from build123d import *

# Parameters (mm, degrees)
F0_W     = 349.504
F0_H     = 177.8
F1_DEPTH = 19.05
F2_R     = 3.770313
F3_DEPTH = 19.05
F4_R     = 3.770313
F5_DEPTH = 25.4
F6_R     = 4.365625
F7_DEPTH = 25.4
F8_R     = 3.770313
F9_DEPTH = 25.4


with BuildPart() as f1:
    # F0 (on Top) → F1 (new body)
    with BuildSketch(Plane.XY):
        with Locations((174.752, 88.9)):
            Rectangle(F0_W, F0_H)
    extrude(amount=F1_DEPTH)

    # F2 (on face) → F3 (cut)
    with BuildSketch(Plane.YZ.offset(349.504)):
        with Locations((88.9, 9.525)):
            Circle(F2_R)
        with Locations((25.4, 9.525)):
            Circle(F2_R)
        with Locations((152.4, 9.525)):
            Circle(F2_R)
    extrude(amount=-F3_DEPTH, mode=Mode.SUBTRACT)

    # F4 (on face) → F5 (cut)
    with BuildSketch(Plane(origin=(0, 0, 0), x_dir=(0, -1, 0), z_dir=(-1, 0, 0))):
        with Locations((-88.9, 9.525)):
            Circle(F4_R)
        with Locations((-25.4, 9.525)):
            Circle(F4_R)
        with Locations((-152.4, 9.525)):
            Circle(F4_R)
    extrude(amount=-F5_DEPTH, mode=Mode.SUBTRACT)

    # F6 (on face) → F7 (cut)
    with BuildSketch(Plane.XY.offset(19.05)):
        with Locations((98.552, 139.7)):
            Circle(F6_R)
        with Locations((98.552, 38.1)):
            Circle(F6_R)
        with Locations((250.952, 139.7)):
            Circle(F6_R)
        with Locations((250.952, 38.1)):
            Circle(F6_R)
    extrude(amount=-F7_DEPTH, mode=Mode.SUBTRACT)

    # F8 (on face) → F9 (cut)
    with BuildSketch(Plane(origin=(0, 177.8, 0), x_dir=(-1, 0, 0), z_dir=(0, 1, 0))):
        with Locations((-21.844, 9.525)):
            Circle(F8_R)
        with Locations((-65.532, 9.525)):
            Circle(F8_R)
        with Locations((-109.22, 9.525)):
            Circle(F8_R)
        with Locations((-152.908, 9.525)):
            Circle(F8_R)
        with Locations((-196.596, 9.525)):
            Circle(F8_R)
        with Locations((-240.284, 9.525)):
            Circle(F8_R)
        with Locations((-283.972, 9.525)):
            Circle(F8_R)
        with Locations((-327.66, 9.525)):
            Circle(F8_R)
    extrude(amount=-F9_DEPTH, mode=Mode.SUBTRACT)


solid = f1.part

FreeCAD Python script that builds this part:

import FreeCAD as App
import Part
import Sketcher

V = App.Vector
Q = App.Units.Quantity


def add_polygon(sketch, points):
    """Adds a closed chain of lines whose ends are joined by coincident constraints."""
    first, n = sketch.GeometryCount, len(points)
    for a, b in zip(points, points[1:] + points[:1]):
        sketch.addGeometry(Part.LineSegment(App.Vector(*a, 0), App.Vector(*b, 0)), False)
    for i in range(n):
        sketch.addConstraint(Sketcher.Constraint("Coincident", first + i, 2, first + (i + 1) % n, 1))

doc = App.newDocument("Part")
body = doc.addObject("PartDesign::Body", "Body")

# Sketch on XY plane
sketch1 = body.newObject("Sketcher::SketchObject", "Sketch")
sketch1.AttachmentSupport = (doc.getObject("XY_Plane"), [""])
sketch1.MapMode = "FlatFace"
add_polygon(sketch1, [(0, 178), (0, 0), (350, 0), (350, 178)])  # lines 0-3
sketch1.addConstraint(Sketcher.Constraint("Vertical", 0))
sketch1.addConstraint(Sketcher.Constraint("Horizontal", 1))
sketch1.addConstraint(Sketcher.Constraint("Vertical", 2))
sketch1.addConstraint(Sketcher.Constraint("Horizontal", 3))
sketch1.addConstraint(Sketcher.Constraint("Coincident", 0, 2, -1, 1))
sketch1.addConstraint(Sketcher.Constraint("DistanceY", 0, 2, 0, 1, Q("7 in")))
sketch1.addConstraint(Sketcher.Constraint("DistanceX", 1, 1, 1, 2, Q("13.76 in")))
pad1 = body.newObject("PartDesign::Pad", "Pad")
pad1.Profile = sketch1
pad1.Length = Q("0.75 in")

# Sketch on YZ plane
sketch2 = body.newObject("Sketcher::SketchObject", "Sketch001")
sketch2.AttachmentSupport = (doc.getObject("YZ_Plane"), [""])
sketch2.MapMode = "FlatFace"
sketch2.AttachmentOffset = App.Placement(V(0, 0, 13.76 * 25.4), App.Rotation())
sketch2.addGeometry(Part.Circle(V(88.9, 9.5, 0), V(0, 0, 1), 3.8), False)
sketch2.addGeometry(Part.Circle(V(25.4, 9.5, 0), V(0, 0, 1), 3.8), False)
sketch2.addGeometry(Part.Circle(V(152.4, 9.5, 0), V(0, 0, 1), 3.8), False)
sketch2.addConstraint(Sketcher.Constraint("Equal", 0, 1))
sketch2.addConstraint(Sketcher.Constraint("Equal", 1, 2))
sketch2.addConstraint(Sketcher.Constraint("Horizontal", 0, 3, 1, 3))
sketch2.addConstraint(Sketcher.Constraint("Horizontal", 1, 3, 2, 3))
sketch2.addConstraint(Sketcher.Constraint("Diameter", 0, Q("0.296875 in")))
sketch2.addConstraint(Sketcher.Constraint("DistanceX", -1, 1, 1, 3, Q("1 in")))
sketch2.addConstraint(Sketcher.Constraint("DistanceX", -1, 1, 2, 3, Q("6 in")))
sketch2.addConstraint(Sketcher.Constraint("DistanceX", -1, 1, 0, 3, Q("3.5 in")))
sketch2.addConstraint(Sketcher.Constraint("DistanceY", -1, 1, 0, 3, Q("0.375 in")))
pocket1 = body.newObject("PartDesign::Pocket", "Pocket")
pocket1.Profile = sketch2
pocket1.Length = Q("0.75 in")

# Sketch on YZ plane
sketch3 = body.newObject("Sketcher::SketchObject", "Sketch002")
sketch3.AttachmentSupport = (doc.getObject("YZ_Plane"), [""])
sketch3.MapMode = "FlatFace"
sketch3.addGeometry(Part.Circle(V(88.9, 9.5, 0), V(0, 0, 1), 3.8), False)
sketch3.addGeometry(Part.Circle(V(25.4, 9.5, 0), V(0, 0, 1), 3.8), False)
sketch3.addGeometry(Part.Circle(V(152.4, 9.5, 0), V(0, 0, 1), 3.8), False)
sketch3.addConstraint(Sketcher.Constraint("Equal", 0, 1))
sketch3.addConstraint(Sketcher.Constraint("Equal", 1, 2))
sketch3.addConstraint(Sketcher.Constraint("Horizontal", 0, 3, 1, 3))
sketch3.addConstraint(Sketcher.Constraint("Horizontal", 1, 3, 2, 3))
sketch3.addConstraint(Sketcher.Constraint("Diameter", 0, Q("0.296875 in")))
sketch3.addConstraint(Sketcher.Constraint("DistanceX", -1, 1, 1, 3, Q("1 in")))
sketch3.addConstraint(Sketcher.Constraint("DistanceX", -1, 1, 2, 3, Q("6 in")))
sketch3.addConstraint(Sketcher.Constraint("DistanceX", -1, 1, 0, 3, Q("3.5 in")))
sketch3.addConstraint(Sketcher.Constraint("DistanceY", -1, 1, 0, 3, Q("0.375 in")))
pocket2 = body.newObject("PartDesign::Pocket", "Pocket001")
pocket2.Profile = sketch3
pocket2.Length = Q("1 in")
pocket2.Reversed = True

# Sketch on XY plane
sketch4 = body.newObject("Sketcher::SketchObject", "Sketch003")
sketch4.AttachmentSupport = (doc.getObject("XY_Plane"), [""])
sketch4.MapMode = "FlatFace"
sketch4.AttachmentOffset = App.Placement(V(0, 0, 0.75 * 25.4), App.Rotation())
sketch4.addGeometry(Part.Circle(V(98.6, 139.7, 0), V(0, 0, 1), 4.4), False)
sketch4.addGeometry(Part.Circle(V(98.6, 38.1, 0), V(0, 0, 1), 4.4), False)
sketch4.addGeometry(Part.Circle(V(251, 139.7, 0), V(0, 0, 1), 4.4), False)
sketch4.addGeometry(Part.Circle(V(251, 38.1, 0), V(0, 0, 1), 4.4), False)
sketch4.addConstraint(Sketcher.Constraint("Equal", 0, 1))
sketch4.addConstraint(Sketcher.Constraint("Equal", 1, 2))
sketch4.addConstraint(Sketcher.Constraint("Equal", 2, 3))
sketch4.addConstraint(Sketcher.Constraint("Horizontal", 0, 3, 2, 3))
sketch4.addConstraint(Sketcher.Constraint("Horizontal", 1, 3, 3, 3))
sketch4.addConstraint(Sketcher.Constraint("Vertical", 0, 3, 1, 3))
sketch4.addConstraint(Sketcher.Constraint("Vertical", 2, 3, 3, 3))
sketch4.addConstraint(Sketcher.Constraint("Diameter", 0, Q("0.34375 in")))
sketch4.addConstraint(Sketcher.Constraint("DistanceY", 1, 3, 0, 3, Q("4 in")))
sketch4.addConstraint(Sketcher.Constraint("DistanceX", 0, 3, 2, 3, Q("6 in")))
sketch4.addConstraint(Sketcher.Constraint("DistanceY", -1, 1, 0, 3, Q("5.5 in")))
sketch4.addConstraint(Sketcher.Constraint("DistanceX", -1, 1, 0, 3, Q("3.88 in")))
pocket3 = body.newObject("PartDesign::Pocket", "Pocket002")
pocket3.Profile = sketch4
pocket3.Length = Q("1 in")

# Sketch on XZ plane
sketch5 = body.newObject("Sketcher::SketchObject", "Sketch004")
sketch5.AttachmentSupport = (doc.getObject("XZ_Plane"), [""])
sketch5.MapMode = "FlatFace"
sketch5.AttachmentOffset = App.Placement(V(0, 0, -7 * 25.4), App.Rotation())
sketch5.addGeometry(Part.Circle(V(21.8, 9.5, 0), V(0, 0, 1), 3.8), False)
sketch5.addGeometry(Part.Circle(V(65.5, 9.5, 0), V(0, 0, 1), 3.8), False)
sketch5.addGeometry(Part.Circle(V(109.2, 9.5, 0), V(0, 0, 1), 3.8), False)
sketch5.addGeometry(Part.Circle(V(152.9, 9.5, 0), V(0, 0, 1), 3.8), False)
sketch5.addGeometry(Part.Circle(V(196.6, 9.5, 0), V(0, 0, 1), 3.8), False)
sketch5.addGeometry(Part.Circle(V(240.3, 9.5, 0), V(0, 0, 1), 3.8), False)
sketch5.addGeometry(Part.Circle(V(284, 9.5, 0), V(0, 0, 1), 3.8), False)
sketch5.addGeometry(Part.Circle(V(327.7, 9.5, 0), V(0, 0, 1), 3.8), False)
sketch5.addConstraint(Sketcher.Constraint("Equal", 0, 1))
sketch5.addConstraint(Sketcher.Constraint("Equal", 1, 2))
sketch5.addConstraint(Sketcher.Constraint("Equal", 2, 3))
sketch5.addConstraint(Sketcher.Constraint("Equal", 3, 4))
sketch5.addConstraint(Sketcher.Constraint("Equal", 4, 5))
sketch5.addConstraint(Sketcher.Constraint("Equal", 5, 6))
sketch5.addConstraint(Sketcher.Constraint("Equal", 6, 7))
sketch5.addConstraint(Sketcher.Constraint("Horizontal", 0, 3, 1, 3))
sketch5.addConstraint(Sketcher.Constraint("Horizontal", 1, 3, 2, 3))
sketch5.addConstraint(Sketcher.Constraint("Horizontal", 2, 3, 3, 3))
sketch5.addConstraint(Sketcher.Constraint("Horizontal", 3, 3, 4, 3))
sketch5.addConstraint(Sketcher.Constraint("Horizontal", 4, 3, 5, 3))
sketch5.addConstraint(Sketcher.Constraint("Horizontal", 5, 3, 6, 3))
sketch5.addConstraint(Sketcher.Constraint("Horizontal", 6, 3, 7, 3))
sketch5.addConstraint(Sketcher.Constraint("Diameter", 0, Q("0.296875 in")))
sketch5.addConstraint(Sketcher.Constraint("DistanceX", -1, 1, 2, 3, Q("4.3 in")))
sketch5.addConstraint(Sketcher.Constraint("DistanceX", -1, 1, 7, 3, Q("12.9 in")))
sketch5.addConstraint(Sketcher.Constraint("DistanceX", 0, 3, 5, 3, Q("8.6 in")))
sketch5.addConstraint(Sketcher.Constraint("DistanceX", 1, 3, 6, 3, Q("8.6 in")))
sketch5.addConstraint(Sketcher.Constraint("DistanceX", -1, 1, 0, 3, Q("0.86 in")))
sketch5.addConstraint(Sketcher.Constraint("DistanceX", -1, 1, 1, 3, Q("2.58 in")))
sketch5.addConstraint(Sketcher.Constraint("DistanceX", -1, 1, 3, 3, Q("6.02 in")))
sketch5.addConstraint(Sketcher.Constraint("DistanceX", -1, 1, 4, 3, Q("7.74 in")))
sketch5.addConstraint(Sketcher.Constraint("DistanceY", -1, 1, 0, 3, Q("0.375 in")))
pocket4 = body.newObject("PartDesign::Pocket", "Pocket003")
pocket4.Profile = sketch5
pocket4.Length = Q("1 in")
pocket4.Reversed = True

doc.recompute()
